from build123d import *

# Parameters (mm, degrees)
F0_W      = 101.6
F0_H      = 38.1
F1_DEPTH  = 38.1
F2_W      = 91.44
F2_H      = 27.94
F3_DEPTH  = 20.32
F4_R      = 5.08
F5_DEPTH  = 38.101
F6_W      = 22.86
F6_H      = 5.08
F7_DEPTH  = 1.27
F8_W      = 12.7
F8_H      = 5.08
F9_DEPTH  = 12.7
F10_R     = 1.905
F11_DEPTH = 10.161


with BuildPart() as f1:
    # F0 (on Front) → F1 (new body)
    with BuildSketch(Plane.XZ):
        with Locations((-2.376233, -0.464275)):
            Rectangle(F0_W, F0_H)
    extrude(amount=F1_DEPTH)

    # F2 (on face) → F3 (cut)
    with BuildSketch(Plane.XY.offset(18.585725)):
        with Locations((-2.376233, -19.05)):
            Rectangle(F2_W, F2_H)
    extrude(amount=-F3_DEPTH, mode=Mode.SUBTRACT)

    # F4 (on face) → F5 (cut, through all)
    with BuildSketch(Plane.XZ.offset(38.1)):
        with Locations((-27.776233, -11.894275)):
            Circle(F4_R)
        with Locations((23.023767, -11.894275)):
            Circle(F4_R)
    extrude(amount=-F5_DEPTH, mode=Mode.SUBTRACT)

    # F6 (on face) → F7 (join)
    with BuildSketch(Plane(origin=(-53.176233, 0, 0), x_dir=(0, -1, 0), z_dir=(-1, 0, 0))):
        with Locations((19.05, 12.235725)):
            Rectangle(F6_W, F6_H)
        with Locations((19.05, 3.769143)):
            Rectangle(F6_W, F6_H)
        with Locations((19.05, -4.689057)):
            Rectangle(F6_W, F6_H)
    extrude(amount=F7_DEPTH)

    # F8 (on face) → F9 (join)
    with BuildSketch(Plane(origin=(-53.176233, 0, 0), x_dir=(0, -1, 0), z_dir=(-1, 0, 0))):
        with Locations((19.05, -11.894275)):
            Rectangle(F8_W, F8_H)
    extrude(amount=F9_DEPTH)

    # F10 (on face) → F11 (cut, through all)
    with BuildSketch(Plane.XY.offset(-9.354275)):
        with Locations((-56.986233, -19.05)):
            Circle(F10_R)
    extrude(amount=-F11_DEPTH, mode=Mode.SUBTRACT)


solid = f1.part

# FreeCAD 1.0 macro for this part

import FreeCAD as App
import Part
import Sketcher
from FreeCAD import Vector
Q = App.Units.Quantity


def add_polygon(sketch, points):
    """Adds a closed chain of lines whose ends are joined by coincident constraints."""
    first, n = sketch.GeometryCount, len(points)
    for a, b in zip(points, points[1:] + points[:1]):
        sketch.addGeometry(Part.LineSegment(App.Vector(*a, 0), App.Vector(*b, 0)), False)
    for i in range(n):
        sketch.addConstraint(Sketcher.Constraint("Coincident", first + i, 2, first + (i + 1) % n, 1))

doc = App.newDocument("Part")
params = doc.addObject("Spreadsheet::Sheet", "Params")
for row, (alias, value) in enumerate([
    ("sketch1_width", "4 in"),
    ("sketch1_height", "1.5 in"),
    ("pad1_length", "1.5 in"),
    ("sketch2_width", "3.6 in"),
    ("sketch2_height", "1.1 in"),
    ("pocket1_length", "0.8 in"),
    ("sketch3_diameter", "0.4 in"),
    ("sketch4_width", "0.9 in"),
    ("sketch4_height", "0.2 in"),
    ("pad2_length", "0.05 in"),
    ("sketch5_width", "0.5 in"),
    ("sketch5_height", "0.2 in"),
    ("pad3_length", "0.5 in"),
    ("sketch6_diameter", "0.15 in"),
], start=1):
    params.set(f"A{row}", alias)
    params.set(f"B{row}", "=" + value)
    params.setAlias(f"B{row}", alias)

body = doc.addObject("PartDesign::Body", "Body")

# Sketch on XZ plane
sketch1 = doc.addObject("Sketcher::SketchObject", "Sketch")
body.addObject(sketch1)
sketch1.AttachmentSupport = (doc.XZ_Plane, [""])
sketch1.MapMode = "FlatFace"
add_polygon(sketch1, [(-53.176233, 18.585725), (-53.176233, -19.514275), (48.423767, -19.514275), (48.423767, 18.585725)])  # lines 0-3
sketch1.addConstraint(Sketcher.Constraint("Vertical", 0))
sketch1.addConstraint(Sketcher.Constraint("Horizontal", 1))
sketch1.addConstraint(Sketcher.Constraint("Vertical", 2))
sketch1.addConstraint(Sketcher.Constraint("Horizontal", 3))
sketch1.addConstraint(Sketcher.Constraint("DistanceX", 1, 1, 1, 2, Q("4 in")))
sketch1.addConstraint(Sketcher.Constraint("DistanceY", 0, 2, 0, 1, Q("1.5 in")))
sketch1.addConstraint(Sketcher.Constraint("DistanceX", 0, 2, -1, 1, 53.176233))
sketch1.addConstraint(Sketcher.Constraint("DistanceY", 0, 2, -1, 1, 19.514275))
sketch1.setExpression("Constraints[8]", "Params.sketch1_width")
sketch1.setExpression("Constraints[9]", "Params.sketch1_height")
pad1 = doc.addObject("PartDesign::Pad", "Pad")
body.addObject(pad1)
pad1.Profile = sketch1
pad1.setExpression("Length", "Params.pad1_length")

# Sketch on XY plane
sketch2 = doc.addObject("Sketcher::SketchObject", "Sketch001")
body.addObject(sketch2)
sketch2.AttachmentSupport = (doc.XY_Plane, [""])
sketch2.MapMode = "FlatFace"
sketch2.AttachmentOffset = App.Placement(Vector(0, 0, 18.585725), App.Rotation())
add_polygon(sketch2, [(-48.096233, -5.08), (-48.096233, -33.02), (43.343767, -33.02), (43.343767, -5.08)])  # lines 0-3
sketch2.addConstraint(Sketcher.Constraint("Vertical", 0))
sketch2.addConstraint(Sketcher.Constraint("Horizontal", 1))
sketch2.addConstraint(Sketcher.Constraint("Vertical", 2))
sketch2.addConstraint(Sketcher.Constraint("Horizontal", 3))
sketch2.addConstraint(Sketcher.Constraint("DistanceX", 1, 1, 1, 2, Q("3.6 in")))
sketch2.addConstraint(Sketcher.Constraint("DistanceY", 0, 2, 0, 1, Q("1.1 in")))
sketch2.addConstraint(Sketcher.Constraint("DistanceY", 0, 2, -1, 1, Q("1.3 in")))
sketch2.addConstraint(Sketcher.Constraint("DistanceX", 0, 2, -1, 1, 48.096233))
sketch2.setExpression("Constraints[8]", "Params.sketch2_width")
sketch2.setExpression("Constraints[9]", "Params.sketch2_height")
pocket1 = doc.addObject("PartDesign::Pocket", "Pocket")
body.addObject(pocket1)
pocket1.Profile = sketch2
pocket1.setExpression("Length", "Params.pocket1_length")

# Sketch on XZ plane
sketch3 = doc.addObject("Sketcher::SketchObject", "Sketch002")
body.addObject(sketch3)
sketch3.AttachmentSupport = (doc.XZ_Plane, [""])
sketch3.MapMode = "FlatFace"
sketch3.AttachmentOffset = App.Placement(Vector(0, 0, 1.5 * 25.4), App.Rotation())
sketch3.addGeometry(Part.Circle(Vector(-27.776233, -11.894275, 0), Vector(0, 0, 1), 5.08), False)
sketch3.addGeometry(Part.Circle(Vector(23.023767, -11.894275, 0), Vector(0, 0, 1), 5.08), False)
sketch3.addConstraint(Sketcher.Constraint("Equal", 0, 1))
sketch3.addConstraint(Sketcher.Constraint("Horizontal", 0, 3, 1, 3))
sketch3.addConstraint(Sketcher.Constraint("Diameter", 0, Q("0.4 in")))
sketch3.addConstraint(Sketcher.Constraint("DistanceX", 0, 3, 1, 3, Q("2 in")))
sketch3.addConstraint(Sketcher.Constraint("DistanceX", 0, 3, -1, 1, 27.776233))
sketch3.addConstraint(Sketcher.Constraint("DistanceY", 0, 3, -1, 1, 11.894275))
sketch3.setExpression("Constraints[2]", "Params.sketch3_diameter")
pocket2 = doc.addObject("PartDesign::Pocket", "Pocket001")
body.addObject(pocket2)
pocket2.Profile = sketch3
pocket2.Type = "ThroughAll"

# Sketch on YZ plane
sketch4 = doc.addObject("Sketcher::SketchObject", "Sketch003")
body.addObject(sketch4)
sketch4.AttachmentSupport = (doc.YZ_Plane, [""])
sketch4.MapMode = "FlatFace"
sketch4.AttachmentOffset = App.Placement(Vector(0, 0, -53.176233), App.Rotation())
add_polygon(sketch4, [(-7.62, 14.775725), (-7.62, 9.695725), (-30.48, 9.695725), (-30.48, 14.775725)])  # lines 0-3
add_polygon(sketch4, [(-7.62, 6.309143), (-7.62, 1.229143), (-30.48, 1.229143), (-30.48, 6.309143)])  # lines 4-7
add_polygon(sketch4, [(-7.62, -2.149057), (-7.62, -7.229057), (-30.48, -7.229057), (-30.48, -2.149057)])  # lines 8-11
sketch4.addConstraint(Sketcher.Constraint("Vertical", 0))
sketch4.addConstraint(Sketcher.Constraint("Horizontal", 1))
sketch4.addConstraint(Sketcher.Constraint("Vertical", 2))
sketch4.addConstraint(Sketcher.Constraint("Horizontal", 3))
sketch4.addConstraint(Sketcher.Constraint("Vertical", 4))
sketch4.addConstraint(Sketcher.Constraint("Horizontal", 5))
sketch4.addConstraint(Sketcher.Constraint("Vertical", 6))
sketch4.addConstraint(Sketcher.Constraint("Horizontal", 7))
sketch4.addConstraint(Sketcher.Constraint("Vertical", 8))
sketch4.addConstraint(Sketcher.Constraint("Horizontal", 9))
sketch4.addConstraint(Sketcher.Constraint("Vertical", 10))
sketch4.addConstraint(Sketcher.Constraint("Horizontal", 11))
sketch4.addConstraint(Sketcher.Constraint("Vertical", 3, 2, 4, 2))
sketch4.addConstraint(Sketcher.Constraint("Vertical", 2, 2, 5, 2))
sketch4.addConstraint(Sketcher.Constraint("Vertical", 7, 2, 8, 2))
sketch4.addConstraint(Sketcher.Constraint("Vertical", 6, 2, 9, 2))
sketch4.addConstraint(Sketcher.Constraint("Equal", 2, 4))
sketch4.addConstraint(Sketcher.Constraint("Equal", 6, 8))
sketch4.addConstraint(Sketcher.Constraint("DistanceX", 1, 2, 1, 1, Q("0.9 in")))
sketch4.addConstraint(Sketcher.Constraint("DistanceY", 0, 2, 0, 1, Q("0.2 in")))
sketch4.addConstraint(Sketcher.Constraint("DistanceX", 0, 2, -1, 1, Q("0.3 in")))
sketch4.addConstraint(Sketcher.Constraint("DistanceY", 8, 2, 4, 2, Q("0.333 in")))
sketch4.addConstraint(Sketcher.Constraint("DistanceY", 4, 2, 0, 2, 8.466582))
sketch4.addConstraint(Sketcher.Constraint("DistanceY", -1, 1, 0, 2, 9.695725))
sketch4.setExpression("Constraints[30]", "Params.sketch4_width")
sketch4.setExpression("Constraints[31]", "Params.sketch4_height")
pad2 = doc.addObject("PartDesign::Pad", "Pad001")
body.addObject(pad2)
pad2.Profile = sketch4
pad2.setExpression("Length", "Params.pad2_length")
pad2.Reversed = True

# Sketch on YZ plane
sketch5 = doc.addObject("Sketcher::SketchObject", "Sketch004")
body.addObject(sketch5)
sketch5.AttachmentSupport = (doc.YZ_Plane, [""])
sketch5.MapMode = "FlatFace"
sketch5.AttachmentOffset = App.Placement(Vector(0, 0, -53.176233), App.Rotation())
add_polygon(sketch5, [(-12.7, -9.354275), (-12.7, -14.434275), (-25.4, -14.434275), (-25.4, -9.354275)])  # lines 0-3
sketch5.addConstraint(Sketcher.Constraint("Vertical", 0))
sketch5.addConstraint(Sketcher.Constraint("Horizontal", 1))
sketch5.addConstraint(Sketcher.Constraint("Vertical", 2))
sketch5.addConstraint(Sketcher.Constraint("Horizontal", 3))
sketch5.addConstraint(Sketcher.Constraint("DistanceX", 1, 2, 1, 1, Q("0.5 in")))
sketch5.addConstraint(Sketcher.Constraint("DistanceY", 0, 2, 0, 1, Q("0.2 in")))
sketch5.addConstraint(Sketcher.Constraint("DistanceX", 1, 2, -1, 1, Q("1 in")))
sketch5.addConstraint(Sketcher.Constraint("DistanceY", 0, 2, -1, 1, 14.434275))
sketch5.setExpression("Constraints[8]", "Params.sketch5_width")
sketch5.setExpression("Constraints[9]", "Params.sketch5_height")
pad3 = doc.addObject("PartDesign::Pad", "Pad002")
body.addObject(pad3)
pad3.Profile = sketch5
pad3.setExpression("Length", "Params.pad3_length")
pad3.Reversed = True

# Sketch on XY plane
sketch6 = doc.addObject("Sketcher::SketchObject", "Sketch005")
body.addObject(sketch6)
sketch6.AttachmentSupport = (doc.XY_Plane, [""])
sketch6.MapMode = "FlatFace"
sketch6.AttachmentOffset = App.Placement(Vector(0, 0, -9.354275), App.Rotation())
sketch6.addGeometry(Part.Circle(Vector(-56.986233, -19.05, 0), Vector(0, 0, 1), 1.905), False)
sketch6.addConstraint(Sketcher.Constraint("Diameter", 0, Q("0.15 in")))
sketch6.addConstraint(Sketcher.Constraint("DistanceY", 0, 3, -1, 1, Q("0.75 in")))
sketch6.addConstraint(Sketcher.Constraint("DistanceX", 0, 3, -1, 1, 56.986233))
sketch6.setExpression("Constraints[0]", "Params.sketch6_diameter")
pocket3 = doc.addObject("PartDesign::Pocket", "Pocket002")
body.addObject(pocket3)
pocket3.Profile = sketch6
pocket3.Type = "ThroughAll"

doc.recompute()
